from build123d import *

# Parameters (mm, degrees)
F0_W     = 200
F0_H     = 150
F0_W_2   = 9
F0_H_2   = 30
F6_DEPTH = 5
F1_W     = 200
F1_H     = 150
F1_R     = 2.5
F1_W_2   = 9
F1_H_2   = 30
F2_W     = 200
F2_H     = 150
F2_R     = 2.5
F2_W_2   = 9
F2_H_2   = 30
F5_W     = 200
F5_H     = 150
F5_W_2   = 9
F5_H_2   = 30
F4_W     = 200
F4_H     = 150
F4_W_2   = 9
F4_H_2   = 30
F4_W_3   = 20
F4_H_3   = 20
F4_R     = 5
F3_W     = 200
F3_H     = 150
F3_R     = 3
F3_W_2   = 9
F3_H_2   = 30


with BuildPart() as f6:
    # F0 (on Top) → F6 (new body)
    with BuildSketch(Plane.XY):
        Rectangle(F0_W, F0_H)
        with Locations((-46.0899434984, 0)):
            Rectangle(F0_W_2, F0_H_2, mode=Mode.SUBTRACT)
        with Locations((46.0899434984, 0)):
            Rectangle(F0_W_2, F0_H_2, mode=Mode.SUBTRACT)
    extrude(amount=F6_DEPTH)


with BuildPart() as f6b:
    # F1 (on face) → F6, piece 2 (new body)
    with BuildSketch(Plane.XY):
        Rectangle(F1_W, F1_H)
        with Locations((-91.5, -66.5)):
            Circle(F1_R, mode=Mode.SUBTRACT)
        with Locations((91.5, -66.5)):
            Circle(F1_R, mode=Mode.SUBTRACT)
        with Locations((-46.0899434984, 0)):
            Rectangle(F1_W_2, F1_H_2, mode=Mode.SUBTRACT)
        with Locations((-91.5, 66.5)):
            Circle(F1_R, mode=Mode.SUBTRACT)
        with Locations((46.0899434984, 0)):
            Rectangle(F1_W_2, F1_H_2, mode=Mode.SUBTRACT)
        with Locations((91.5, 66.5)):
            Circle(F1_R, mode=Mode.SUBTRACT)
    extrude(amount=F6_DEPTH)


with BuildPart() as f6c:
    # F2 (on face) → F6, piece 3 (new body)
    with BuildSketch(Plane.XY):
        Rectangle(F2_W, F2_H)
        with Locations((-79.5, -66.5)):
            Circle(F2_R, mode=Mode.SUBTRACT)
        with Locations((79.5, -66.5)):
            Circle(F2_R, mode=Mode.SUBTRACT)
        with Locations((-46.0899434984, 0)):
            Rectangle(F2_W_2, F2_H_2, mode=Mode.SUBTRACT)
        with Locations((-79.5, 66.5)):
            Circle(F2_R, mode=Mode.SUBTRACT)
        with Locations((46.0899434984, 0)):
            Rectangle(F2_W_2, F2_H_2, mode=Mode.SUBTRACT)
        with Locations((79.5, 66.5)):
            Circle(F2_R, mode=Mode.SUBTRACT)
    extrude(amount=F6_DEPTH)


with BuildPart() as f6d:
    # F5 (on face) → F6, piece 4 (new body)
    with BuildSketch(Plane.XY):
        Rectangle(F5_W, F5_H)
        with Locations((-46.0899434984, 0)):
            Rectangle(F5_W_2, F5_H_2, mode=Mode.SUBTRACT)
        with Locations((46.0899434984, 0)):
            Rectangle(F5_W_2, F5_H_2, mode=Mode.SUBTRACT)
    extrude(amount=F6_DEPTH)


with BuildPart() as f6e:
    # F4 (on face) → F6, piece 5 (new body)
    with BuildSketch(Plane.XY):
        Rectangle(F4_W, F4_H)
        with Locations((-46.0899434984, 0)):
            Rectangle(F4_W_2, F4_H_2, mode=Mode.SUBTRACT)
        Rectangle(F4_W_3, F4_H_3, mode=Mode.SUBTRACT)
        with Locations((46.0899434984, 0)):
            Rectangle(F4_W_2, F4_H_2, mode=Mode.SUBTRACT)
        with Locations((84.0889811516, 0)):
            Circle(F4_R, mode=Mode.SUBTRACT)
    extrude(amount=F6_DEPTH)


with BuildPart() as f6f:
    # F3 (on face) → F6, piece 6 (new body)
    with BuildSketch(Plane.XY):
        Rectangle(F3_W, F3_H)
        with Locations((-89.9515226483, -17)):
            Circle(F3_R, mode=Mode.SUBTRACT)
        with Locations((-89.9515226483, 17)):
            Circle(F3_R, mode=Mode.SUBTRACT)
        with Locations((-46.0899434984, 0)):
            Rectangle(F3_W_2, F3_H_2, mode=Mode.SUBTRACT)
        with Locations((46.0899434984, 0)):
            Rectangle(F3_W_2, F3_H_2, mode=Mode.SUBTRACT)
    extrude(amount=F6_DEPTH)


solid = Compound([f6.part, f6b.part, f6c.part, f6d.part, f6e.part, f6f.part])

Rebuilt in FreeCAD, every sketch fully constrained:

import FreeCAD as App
import Part
import Sketcher
Q = App.Units.Quantity


def add_polygon(sketch, points):
    """Adds a closed chain of lines whose ends are joined by coincident constraints."""
    first, n = sketch.GeometryCount, len(points)
    for a, b in zip(points, points[1:] + points[:1]):
        sketch.addGeometry(Part.LineSegment(App.Vector(*a, 0), App.Vector(*b, 0)), False)
    for i in range(n):
        sketch.addConstraint(Sketcher.Constraint("Coincident", first + i, 2, first + (i + 1) % n, 1))

doc = App.newDocument("Part")
params = doc.addObject("Spreadsheet::Sheet", "Params")
for row, (alias, value) in enumerate([
    ("sketch1_width", "200 mm"),
    ("sketch1_width2", "9 mm"),
    ("sketch1_height", "150 mm"),
    ("sketch1_height2", "30 mm"),
    ("pad1_length", "5 mm"),
    ("sketch2_diameter", "5 mm"),
    ("sketch2_width", "200 mm"),
    ("sketch2_width2", "9 mm"),
    ("sketch2_height", "150 mm"),
    ("sketch2_height2", "30 mm"),
    ("pad2_length", "5 mm"),
    ("sketch3_diameter", "5 mm"),
    ("sketch3_width", "200 mm"),
    ("sketch3_width2", "9 mm"),
    ("sketch3_height", "150 mm"),
    ("sketch3_height2", "30 mm"),
    ("pad3_length", "5 mm"),
    ("sketch4_width", "200 mm"),
    ("sketch4_width2", "9 mm"),
    ("sketch4_height", "150 mm"),
    ("sketch4_height2", "30 mm"),
    ("pad4_length", "5 mm"),
    ("sketch5_diameter", "10 mm"),
    ("sketch5_width", "200 mm"),
    ("sketch5_width2", "9 mm"),
    ("sketch5_width3", "20 mm"),
    ("sketch5_height", "150 mm"),
    ("pad5_length", "5 mm"),
    ("sketch6_diameter", "6 mm"),
    ("sketch6_width", "200 mm"),
    ("sketch6_width2", "9 mm"),
    ("sketch6_height", "150 mm"),
    ("sketch6_height2", "30 mm"),
    ("pad6_length", "5 mm"),
], start=1):
    params.set(f"A{row}", alias)
    params.set(f"B{row}", "=" + value)
    params.setAlias(f"B{row}", alias)

body = doc.addObject("PartDesign::Body", "Body")

sketch1 = body.newObject("Sketcher::SketchObject", "Sketch")
sketch1.AttachmentSupport = (doc.getObject("XY_Plane"), [""])
sketch1.MapMode = "FlatFace"
add_polygon(sketch1, [(-100, 75), (-100, -75), (100, -75), (100, 75)])
add_polygon(sketch1, [(-42, -15), (-51, -15), (-51, 15), (-42, 15)])
add_polygon(sketch1, [(51, -15), (42, -15), (42, 15), (51, 15)])
sketch1.addConstraint([
    Sketcher.Constraint("Vertical", 0),
    Sketcher.Constraint("Horizontal", 1),
    Sketcher.Constraint("Vertical", 2),
    Sketcher.Constraint("Horizontal", 3),
    Sketcher.Constraint("Horizontal", 4),
    Sketcher.Constraint("Vertical", 5),
    Sketcher.Constraint("Horizontal", 6),
    Sketcher.Constraint("Vertical", 7),
    Sketcher.Constraint("Horizontal", 8),
    Sketcher.Constraint("Vertical", 9),
    Sketcher.Constraint("Horizontal", 10),
    Sketcher.Constraint("Vertical", 11),
    Sketcher.Constraint("Symmetric", 0, 2, 2, 2, -1, 1),
    Sketcher.Constraint("Symmetric", 6, 2, 8, 2, -1, 1),
    Sketcher.Constraint("Symmetric", 4, 2, 10, 2, -1, 1),
    Sketcher.Constraint("Horizontal", 7, 2, 8, 2),
    Sketcher.Constraint("DistanceX", 1, 1, 1, 2, Q("200 mm")),
    Sketcher.Constraint("DistanceX", 4, 2, 4, 1, Q("9 mm")),
    Sketcher.Constraint("DistanceY", 0, 2, 0, 1, Q("150 mm")),
    Sketcher.Constraint("DistanceY", 5, 1, 5, 2, Q("30 mm")),
    Sketcher.Constraint("DistanceX", 4, 2, -1, 1, Q("50.589943 mm")),
])
sketch1.setExpression("Constraints[28]", "Params.sketch1_width")
sketch1.setExpression("Constraints[29]", "Params.sketch1_width2")
sketch1.setExpression("Constraints[30]", "Params.sketch1_height")
sketch1.setExpression("Constraints[31]", "Params.sketch1_height2")
pad1 = body.newObject("PartDesign::Pad", "Pad")
pad1.Profile = sketch1
pad1.setExpression("Length", "Params.pad1_length")
body2 = doc.addObject("PartDesign::Body", "Body001")

sketch2 = body2.newObject("Sketcher::SketchObject", "Sketch001")
sketch2.AttachmentSupport = (doc.getObject("XY_Plane001"), [""])
sketch2.MapMode = "FlatFace"
add_polygon(sketch2, [(-100, 75), (-100, -75), (100, -75), (100, 75)])
sketch2.addGeometry(Part.Circle(App.Vector(-91.5, -66.5, 0), App.Vector(0, 0, 1), 2.5), False)
sketch2.addGeometry(Part.Circle(App.Vector(91.5, -66.5, 0), App.Vector(0, 0, 1), 2.5), False)
add_polygon(sketch2, [(-41.6, -15), (-50.6, -15), (-50.6, 15), (-41.6, 15)])
sketch2.addGeometry(Part.Circle(App.Vector(-91.5, 66.5, 0), App.Vector(0, 0, 1), 2.5), False)
add_polygon(sketch2, [(50.6, -15), (41.6, -15), (41.6, 15), (50.6, 15)])
sketch2.addGeometry(Part.Circle(App.Vector(91.5, 66.5, 0), App.Vector(0, 0, 1), 2.5), False)
sketch2.addConstraint([
    Sketcher.Constraint("Vertical", 0),
    Sketcher.Constraint("Horizontal", 1),
    Sketcher.Constraint("Vertical", 2),
    Sketcher.Constraint("Horizontal", 3),
    Sketcher.Constraint("Horizontal", 6),
    Sketcher.Constraint("Vertical", 7),
    Sketcher.Constraint("Horizontal", 8),
    Sketcher.Constraint("Vertical", 9),
    Sketcher.Constraint("Horizontal", 11),
    Sketcher.Constraint("Vertical", 12),
    Sketcher.Constraint("Horizontal", 13),
    Sketcher.Constraint("Vertical", 14),
    Sketcher.Constraint("Equal", 4, 5),
    Sketcher.Constraint("Equal", 5, 10),
    Sketcher.Constraint("Equal", 10, 15),
    Sketcher.Constraint("Symmetric", 5, 3, 10, 3, -1, 1),
    Sketcher.Constraint("Symmetric", 4, 3, 15, 3, -1, 1),
    Sketcher.Constraint("Symmetric", 0, 2, 2, 2, -1, 1),
    Sketcher.Constraint("Symmetric", 8, 2, 11, 2, -1, 1),
    Sketcher.Constraint("Symmetric", 6, 2, 13, 2, -1, 1),
    Sketcher.Constraint("Symmetric", 4, 3, 5, 3, -2),
    Sketcher.Constraint("Horizontal", 9, 2, 11, 2),
    Sketcher.Constraint("Diameter", 4, Q("5 mm")),
    Sketcher.Constraint("DistanceX", 1, 1, 1, 2, Q("200 mm")),
    Sketcher.Constraint("DistanceX", 6, 2, 6, 1, Q("9 mm")),
    Sketcher.Constraint("DistanceY", 0, 2, 0, 1, Q("150 mm")),
    Sketcher.Constraint("DistanceY", 7, 1, 7, 2, Q("30 mm")),
    Sketcher.Constraint("DistanceX", 4, 3, 5, 3, Q("183 mm")),
    Sketcher.Constraint("DistanceY", 4, 3, 10, 3, Q("133 mm")),
    Sketcher.Constraint("DistanceX", 6, 2, -1, 1, Q("50.589943 mm")),
])
sketch2.setExpression("Constraints[34]", "Params.sketch2_diameter")
sketch2.setExpression("Constraints[35]", "Params.sketch2_width")
sketch2.setExpression("Constraints[36]", "Params.sketch2_width2")
sketch2.setExpression("Constraints[37]", "Params.sketch2_height")
sketch2.setExpression("Constraints[38]", "Params.sketch2_height2")
pad2 = body2.newObject("PartDesign::Pad", "Pad001")
pad2.Profile = sketch2
pad2.setExpression("Length", "Params.pad2_length")
body3 = doc.addObject("PartDesign::Body", "Body002")

sketch3 = body3.newObject("Sketcher::SketchObject", "Sketch002")
sketch3.AttachmentSupport = (doc.getObject("XY_Plane002"), [""])
sketch3.MapMode = "FlatFace"
add_polygon(sketch3, [(-100, 75), (-100, -75), (100, -75), (100, 75)])
sketch3.addGeometry(Part.Circle(App.Vector(-79.5, -66.5, 0), App.Vector(0, 0, 1), 2.5), False)
sketch3.addGeometry(Part.Circle(App.Vector(79.5, -66.5, 0), App.Vector(0, 0, 1), 2.5), False)
add_polygon(sketch3, [(-41.6, -15), (-50.6, -15), (-50.6, 15), (-41.6, 15)])
sketch3.addGeometry(Part.Circle(App.Vector(-79.5, 66.5, 0), App.Vector(0, 0, 1), 2.5), False)
add_polygon(sketch3, [(50.6, -15), (41.6, -15), (41.6, 15), (50.6, 15)])
sketch3.addGeometry(Part.Circle(App.Vector(79.5, 66.5, 0), App.Vector(0, 0, 1), 2.5), False)
sketch3.addConstraint([
    Sketcher.Constraint("Vertical", 0),
    Sketcher.Constraint("Horizontal", 1),
    Sketcher.Constraint("Vertical", 2),
    Sketcher.Constraint("Horizontal", 3),
    Sketcher.Constraint("Horizontal", 6),
    Sketcher.Constraint("Vertical", 7),
    Sketcher.Constraint("Horizontal", 8),
    Sketcher.Constraint("Vertical", 9),
    Sketcher.Constraint("Horizontal", 11),
    Sketcher.Constraint("Vertical", 12),
    Sketcher.Constraint("Horizontal", 13),
    Sketcher.Constraint("Vertical", 14),
    Sketcher.Constraint("Equal", 4, 5),
    Sketcher.Constraint("Equal", 5, 10),
    Sketcher.Constraint("Equal", 10, 15),
    Sketcher.Constraint("Symmetric", 5, 3, 10, 3, -1, 1),
    Sketcher.Constraint("Symmetric", 4, 3, 15, 3, -1, 1),
    Sketcher.Constraint("Symmetric", 0, 2, 2, 2, -1, 1),
    Sketcher.Constraint("Symmetric", 8, 2, 11, 2, -1, 1),
    Sketcher.Constraint("Symmetric", 6, 2, 13, 2, -1, 1),
    Sketcher.Constraint("Symmetric", 4, 3, 5, 3, -2),
    Sketcher.Constraint("Horizontal", 9, 2, 11, 2),
    Sketcher.Constraint("Diameter", 4, Q("5 mm")),
    Sketcher.Constraint("DistanceX", 1, 1, 1, 2, Q("200 mm")),
    Sketcher.Constraint("DistanceX", 6, 2, 6, 1, Q("9 mm")),
    Sketcher.Constraint("DistanceY", 0, 2, 0, 1, Q("150 mm")),
    Sketcher.Constraint("DistanceY", 7, 1, 7, 2, Q("30 mm")),
    Sketcher.Constraint("DistanceX", 4, 3, 5, 3, Q("159 mm")),
    Sketcher.Constraint("DistanceY", 4, 3, 10, 3, Q("133 mm")),
    Sketcher.Constraint("DistanceX", 6, 2, -1, 1, Q("50.589943 mm")),
])
sketch3.setExpression("Constraints[34]", "Params.sketch3_diameter")
sketch3.setExpression("Constraints[35]", "Params.sketch3_width")
sketch3.setExpression("Constraints[36]", "Params.sketch3_width2")
sketch3.setExpression("Constraints[37]", "Params.sketch3_height")
sketch3.setExpression("Constraints[38]", "Params.sketch3_height2")
pad3 = body3.newObject("PartDesign::Pad", "Pad002")
pad3.Profile = sketch3
pad3.setExpression("Length", "Params.pad3_length")
body4 = doc.addObject("PartDesign::Body", "Body003")

sketch4 = body4.newObject("Sketcher::SketchObject", "Sketch003")
sketch4.AttachmentSupport = (doc.getObject("XY_Plane003"), [""])
sketch4.MapMode = "FlatFace"
add_polygon(sketch4, [(-100, 75), (-100, -75), (100, -75), (100, 75)])
add_polygon(sketch4, [(-42, -15), (-51, -15), (-51, 15), (-42, 15)])
add_polygon(sketch4, [(51, -15), (42, -15), (42, 15), (51, 15)])
sketch4.addConstraint([
    Sketcher.Constraint("Vertical", 0),
    Sketcher.Constraint("Horizontal", 1),
    Sketcher.Constraint("Vertical", 2),
    Sketcher.Constraint("Horizontal", 3),
    Sketcher.Constraint("Horizontal", 4),
    Sketcher.Constraint("Vertical", 5),
    Sketcher.Constraint("Horizontal", 6),
    Sketcher.Constraint("Vertical", 7),
    Sketcher.Constraint("Horizontal", 8),
    Sketcher.Constraint("Vertical", 9),
    Sketcher.Constraint("Horizontal", 10),
    Sketcher.Constraint("Vertical", 11),
    Sketcher.Constraint("Symmetric", 0, 2, 2, 2, -1, 1),
    Sketcher.Constraint("Symmetric", 6, 2, 8, 2, -1, 1),
    Sketcher.Constraint("Symmetric", 4, 2, 10, 2, -1, 1),
    Sketcher.Constraint("Horizontal", 7, 2, 8, 2),
    Sketcher.Constraint("DistanceX", 1, 1, 1, 2, Q("200 mm")),
    Sketcher.Constraint("DistanceX", 4, 2, 4, 1, Q("9 mm")),
    Sketcher.Constraint("DistanceY", 0, 2, 0, 1, Q("150 mm")),
    Sketcher.Constraint("DistanceY", 5, 1, 5, 2, Q("30 mm")),
    Sketcher.Constraint("DistanceX", 4, 2, -1, 1, Q("50.589943 mm")),
])
sketch4.setExpression("Constraints[28]", "Params.sketch4_width")
sketch4.setExpression("Constraints[29]", "Params.sketch4_width2")
sketch4.setExpression("Constraints[30]", "Params.sketch4_height")
sketch4.setExpression("Constraints[31]", "Params.sketch4_height2")
pad4 = body4.newObject("PartDesign::Pad", "Pad003")
pad4.Profile = sketch4
pad4.setExpression("Length", "Params.pad4_length")
body5 = doc.addObject("PartDesign::Body", "Body004")

sketch5 = body5.newObject("Sketcher::SketchObject", "Sketch004")
sketch5.AttachmentSupport = (doc.getObject("XY_Plane004"), [""])
sketch5.MapMode = "FlatFace"
add_polygon(sketch5, [(-100, 75), (-100, -75), (100, -75), (100, 75)])
add_polygon(sketch5, [(-42, -15), (-51, -15), (-51, 15), (-42, 15)])
add_polygon(sketch5, [(10, -10), (-10, -10), (-10, 10), (10, 10)])
add_polygon(sketch5, [(51, -15), (42, -15), (42, 15), (51, 15)])
sketch5.addGeometry(Part.Circle(App.Vector(84, 0, 0), App.Vector(0, 0, 1), 5), False)
sketch5.addConstraint([
    Sketcher.Constraint("Vertical", 0),
    Sketcher.Constraint("Horizontal", 1),
    Sketcher.Constraint("Vertical", 2),
    Sketcher.Constraint("Horizontal", 3),
    Sketcher.Constraint("Horizontal", 4),
    Sketcher.Constraint("Vertical", 5),
    Sketcher.Constraint("Horizontal", 6),
    Sketcher.Constraint("Vertical", 7),
    Sketcher.Constraint("Horizontal", 8),
    Sketcher.Constraint("Vertical", 9),
    Sketcher.Constraint("Horizontal", 10),
    Sketcher.Constraint("Vertical", 11),
    Sketcher.Constraint("Horizontal", 12),
    Sketcher.Constraint("Vertical", 13),
    Sketcher.Constraint("Horizontal", 14),
    Sketcher.Constraint("Vertical", 15),
    Sketcher.Constraint("Symmetric", 0, 2, 2, 2, -1, 1),
    Sketcher.Constraint("Symmetric", 8, 2, 10, 2, -1, 1),
    Sketcher.Constraint("Symmetric", 6, 2, 12, 2, -1, 1),
    Sketcher.Constraint("Symmetric", 4, 2, 14, 2, -1, 1),
    Sketcher.Constraint("PointOnObject", 16, 3, -1),
    Sketcher.Constraint("Horizontal", 7, 2, 12, 2),
    Sketcher.Constraint("Equal", 10, 9),
    Sketcher.Constraint("Diameter", 16, Q("10 mm")),
    Sketcher.Constraint("DistanceX", 1, 1, 1, 2, Q("200 mm")),
    Sketcher.Constraint("DistanceX", 4, 2, 4, 1, Q("9 mm")),
    Sketcher.Constraint("DistanceX", 8, 2, 8, 1, Q("20 mm")),
    Sketcher.Constraint("DistanceY", 0, 2, 0, 1, Q("150 mm")),
    Sketcher.Constraint("DistanceY", 5, 1, 5, 2, Q("30 mm")),
    Sketcher.Constraint("DistanceX", -1, 1, 16, 3, Q("84.088981 mm")),
    Sketcher.Constraint("DistanceX", 4, 2, -1, 1, Q("50.589943 mm")),
])
sketch5.setExpression("Constraints[39]", "Params.sketch5_diameter")
sketch5.setExpression("Constraints[40]", "Params.sketch5_width")
sketch5.setExpression("Constraints[41]", "Params.sketch5_width2")
sketch5.setExpression("Constraints[42]", "Params.sketch5_width3")
sketch5.setExpression("Constraints[43]", "Params.sketch5_height")
pad5 = body5.newObject("PartDesign::Pad", "Pad004")
pad5.Profile = sketch5
pad5.setExpression("Length", "Params.pad5_length")
body6 = doc.addObject("PartDesign::Body", "Body005")

sketch6 = body6.newObject("Sketcher::SketchObject", "Sketch005")
sketch6.AttachmentSupport = (doc.getObject("XY_Plane005"), [""])
sketch6.MapMode = "FlatFace"
add_polygon(sketch6, [(-100, 75), (-100, -75), (100, -75), (100, 75)])
sketch6.addGeometry(Part.Circle(App.Vector(-90, -17, 0), App.Vector(0, 0, 1), 3), False)
add_polygon(sketch6, [(-41.6, -15), (-50.6, -15), (-50.6, 15), (-41.6, 15)])
sketch6.addGeometry(Part.Circle(App.Vector(-90, 17, 0), App.Vector(0, 0, 1), 3), False)
add_polygon(sketch6, [(50.6, -15), (41.6, -15), (41.6, 15), (50.6, 15)])
sketch6.addConstraint([
    Sketcher.Constraint("Vertical", 0),
    Sketcher.Constraint("Horizontal", 1),
    Sketcher.Constraint("Vertical", 2),
    Sketcher.Constraint("Horizontal", 3),
    Sketcher.Constraint("Horizontal", 5),
    Sketcher.Constraint("Vertical", 6),
    Sketcher.Constraint("Horizontal", 7),
    Sketcher.Constraint("Vertical", 8),
    Sketcher.Constraint("Horizontal", 10),
    Sketcher.Constraint("Vertical", 11),
    Sketcher.Constraint("Horizontal", 12),
    Sketcher.Constraint("Vertical", 13),
    Sketcher.Constraint("Equal", 4, 9),
    Sketcher.Constraint("Symmetric", 0, 2, 2, 2, -1, 1),
    Sketcher.Constraint("Symmetric", 7, 2, 10, 2, -1, 1),
    Sketcher.Constraint("Symmetric", 5, 2, 12, 2, -1, 1),
    Sketcher.Constraint("Symmetric", 4, 3, 9, 3, -1),
    Sketcher.Constraint("Horizontal", 8, 2, 10, 2),
    Sketcher.Constraint("Diameter", 4, Q("6 mm")),
    Sketcher.Constraint("DistanceX", 1, 1, 1, 2, Q("200 mm")),
    Sketcher.Constraint("DistanceX", 5, 2, 5, 1, Q("9 mm")),
    Sketcher.Constraint("DistanceY", 0, 2, 0, 1, Q("150 mm")),
    Sketcher.Constraint("DistanceY", 6, 1, 6, 2, Q("30 mm")),
    Sketcher.Constraint("DistanceY", 4, 3, -1, 1, Q("17 mm")),
    Sketcher.Constraint("DistanceX", 4, 3, 5, 2, Q("39.361579 mm")),
    Sketcher.Constraint("DistanceX", 4, 3, -1, 1, Q("89.951523 mm")),
])
sketch6.setExpression("Constraints[30]", "Params.sketch6_diameter")
sketch6.setExpression("Constraints[31]", "Params.sketch6_width")
sketch6.setExpression("Constraints[32]", "Params.sketch6_width2")
sketch6.setExpression("Constraints[33]", "Params.sketch6_height")
sketch6.setExpression("Constraints[34]", "Params.sketch6_height2")
pad6 = body6.newObject("PartDesign::Pad", "Pad005")
pad6.Profile = sketch6
pad6.setExpression("Length", "Params.pad6_length")

doc.recompute()
